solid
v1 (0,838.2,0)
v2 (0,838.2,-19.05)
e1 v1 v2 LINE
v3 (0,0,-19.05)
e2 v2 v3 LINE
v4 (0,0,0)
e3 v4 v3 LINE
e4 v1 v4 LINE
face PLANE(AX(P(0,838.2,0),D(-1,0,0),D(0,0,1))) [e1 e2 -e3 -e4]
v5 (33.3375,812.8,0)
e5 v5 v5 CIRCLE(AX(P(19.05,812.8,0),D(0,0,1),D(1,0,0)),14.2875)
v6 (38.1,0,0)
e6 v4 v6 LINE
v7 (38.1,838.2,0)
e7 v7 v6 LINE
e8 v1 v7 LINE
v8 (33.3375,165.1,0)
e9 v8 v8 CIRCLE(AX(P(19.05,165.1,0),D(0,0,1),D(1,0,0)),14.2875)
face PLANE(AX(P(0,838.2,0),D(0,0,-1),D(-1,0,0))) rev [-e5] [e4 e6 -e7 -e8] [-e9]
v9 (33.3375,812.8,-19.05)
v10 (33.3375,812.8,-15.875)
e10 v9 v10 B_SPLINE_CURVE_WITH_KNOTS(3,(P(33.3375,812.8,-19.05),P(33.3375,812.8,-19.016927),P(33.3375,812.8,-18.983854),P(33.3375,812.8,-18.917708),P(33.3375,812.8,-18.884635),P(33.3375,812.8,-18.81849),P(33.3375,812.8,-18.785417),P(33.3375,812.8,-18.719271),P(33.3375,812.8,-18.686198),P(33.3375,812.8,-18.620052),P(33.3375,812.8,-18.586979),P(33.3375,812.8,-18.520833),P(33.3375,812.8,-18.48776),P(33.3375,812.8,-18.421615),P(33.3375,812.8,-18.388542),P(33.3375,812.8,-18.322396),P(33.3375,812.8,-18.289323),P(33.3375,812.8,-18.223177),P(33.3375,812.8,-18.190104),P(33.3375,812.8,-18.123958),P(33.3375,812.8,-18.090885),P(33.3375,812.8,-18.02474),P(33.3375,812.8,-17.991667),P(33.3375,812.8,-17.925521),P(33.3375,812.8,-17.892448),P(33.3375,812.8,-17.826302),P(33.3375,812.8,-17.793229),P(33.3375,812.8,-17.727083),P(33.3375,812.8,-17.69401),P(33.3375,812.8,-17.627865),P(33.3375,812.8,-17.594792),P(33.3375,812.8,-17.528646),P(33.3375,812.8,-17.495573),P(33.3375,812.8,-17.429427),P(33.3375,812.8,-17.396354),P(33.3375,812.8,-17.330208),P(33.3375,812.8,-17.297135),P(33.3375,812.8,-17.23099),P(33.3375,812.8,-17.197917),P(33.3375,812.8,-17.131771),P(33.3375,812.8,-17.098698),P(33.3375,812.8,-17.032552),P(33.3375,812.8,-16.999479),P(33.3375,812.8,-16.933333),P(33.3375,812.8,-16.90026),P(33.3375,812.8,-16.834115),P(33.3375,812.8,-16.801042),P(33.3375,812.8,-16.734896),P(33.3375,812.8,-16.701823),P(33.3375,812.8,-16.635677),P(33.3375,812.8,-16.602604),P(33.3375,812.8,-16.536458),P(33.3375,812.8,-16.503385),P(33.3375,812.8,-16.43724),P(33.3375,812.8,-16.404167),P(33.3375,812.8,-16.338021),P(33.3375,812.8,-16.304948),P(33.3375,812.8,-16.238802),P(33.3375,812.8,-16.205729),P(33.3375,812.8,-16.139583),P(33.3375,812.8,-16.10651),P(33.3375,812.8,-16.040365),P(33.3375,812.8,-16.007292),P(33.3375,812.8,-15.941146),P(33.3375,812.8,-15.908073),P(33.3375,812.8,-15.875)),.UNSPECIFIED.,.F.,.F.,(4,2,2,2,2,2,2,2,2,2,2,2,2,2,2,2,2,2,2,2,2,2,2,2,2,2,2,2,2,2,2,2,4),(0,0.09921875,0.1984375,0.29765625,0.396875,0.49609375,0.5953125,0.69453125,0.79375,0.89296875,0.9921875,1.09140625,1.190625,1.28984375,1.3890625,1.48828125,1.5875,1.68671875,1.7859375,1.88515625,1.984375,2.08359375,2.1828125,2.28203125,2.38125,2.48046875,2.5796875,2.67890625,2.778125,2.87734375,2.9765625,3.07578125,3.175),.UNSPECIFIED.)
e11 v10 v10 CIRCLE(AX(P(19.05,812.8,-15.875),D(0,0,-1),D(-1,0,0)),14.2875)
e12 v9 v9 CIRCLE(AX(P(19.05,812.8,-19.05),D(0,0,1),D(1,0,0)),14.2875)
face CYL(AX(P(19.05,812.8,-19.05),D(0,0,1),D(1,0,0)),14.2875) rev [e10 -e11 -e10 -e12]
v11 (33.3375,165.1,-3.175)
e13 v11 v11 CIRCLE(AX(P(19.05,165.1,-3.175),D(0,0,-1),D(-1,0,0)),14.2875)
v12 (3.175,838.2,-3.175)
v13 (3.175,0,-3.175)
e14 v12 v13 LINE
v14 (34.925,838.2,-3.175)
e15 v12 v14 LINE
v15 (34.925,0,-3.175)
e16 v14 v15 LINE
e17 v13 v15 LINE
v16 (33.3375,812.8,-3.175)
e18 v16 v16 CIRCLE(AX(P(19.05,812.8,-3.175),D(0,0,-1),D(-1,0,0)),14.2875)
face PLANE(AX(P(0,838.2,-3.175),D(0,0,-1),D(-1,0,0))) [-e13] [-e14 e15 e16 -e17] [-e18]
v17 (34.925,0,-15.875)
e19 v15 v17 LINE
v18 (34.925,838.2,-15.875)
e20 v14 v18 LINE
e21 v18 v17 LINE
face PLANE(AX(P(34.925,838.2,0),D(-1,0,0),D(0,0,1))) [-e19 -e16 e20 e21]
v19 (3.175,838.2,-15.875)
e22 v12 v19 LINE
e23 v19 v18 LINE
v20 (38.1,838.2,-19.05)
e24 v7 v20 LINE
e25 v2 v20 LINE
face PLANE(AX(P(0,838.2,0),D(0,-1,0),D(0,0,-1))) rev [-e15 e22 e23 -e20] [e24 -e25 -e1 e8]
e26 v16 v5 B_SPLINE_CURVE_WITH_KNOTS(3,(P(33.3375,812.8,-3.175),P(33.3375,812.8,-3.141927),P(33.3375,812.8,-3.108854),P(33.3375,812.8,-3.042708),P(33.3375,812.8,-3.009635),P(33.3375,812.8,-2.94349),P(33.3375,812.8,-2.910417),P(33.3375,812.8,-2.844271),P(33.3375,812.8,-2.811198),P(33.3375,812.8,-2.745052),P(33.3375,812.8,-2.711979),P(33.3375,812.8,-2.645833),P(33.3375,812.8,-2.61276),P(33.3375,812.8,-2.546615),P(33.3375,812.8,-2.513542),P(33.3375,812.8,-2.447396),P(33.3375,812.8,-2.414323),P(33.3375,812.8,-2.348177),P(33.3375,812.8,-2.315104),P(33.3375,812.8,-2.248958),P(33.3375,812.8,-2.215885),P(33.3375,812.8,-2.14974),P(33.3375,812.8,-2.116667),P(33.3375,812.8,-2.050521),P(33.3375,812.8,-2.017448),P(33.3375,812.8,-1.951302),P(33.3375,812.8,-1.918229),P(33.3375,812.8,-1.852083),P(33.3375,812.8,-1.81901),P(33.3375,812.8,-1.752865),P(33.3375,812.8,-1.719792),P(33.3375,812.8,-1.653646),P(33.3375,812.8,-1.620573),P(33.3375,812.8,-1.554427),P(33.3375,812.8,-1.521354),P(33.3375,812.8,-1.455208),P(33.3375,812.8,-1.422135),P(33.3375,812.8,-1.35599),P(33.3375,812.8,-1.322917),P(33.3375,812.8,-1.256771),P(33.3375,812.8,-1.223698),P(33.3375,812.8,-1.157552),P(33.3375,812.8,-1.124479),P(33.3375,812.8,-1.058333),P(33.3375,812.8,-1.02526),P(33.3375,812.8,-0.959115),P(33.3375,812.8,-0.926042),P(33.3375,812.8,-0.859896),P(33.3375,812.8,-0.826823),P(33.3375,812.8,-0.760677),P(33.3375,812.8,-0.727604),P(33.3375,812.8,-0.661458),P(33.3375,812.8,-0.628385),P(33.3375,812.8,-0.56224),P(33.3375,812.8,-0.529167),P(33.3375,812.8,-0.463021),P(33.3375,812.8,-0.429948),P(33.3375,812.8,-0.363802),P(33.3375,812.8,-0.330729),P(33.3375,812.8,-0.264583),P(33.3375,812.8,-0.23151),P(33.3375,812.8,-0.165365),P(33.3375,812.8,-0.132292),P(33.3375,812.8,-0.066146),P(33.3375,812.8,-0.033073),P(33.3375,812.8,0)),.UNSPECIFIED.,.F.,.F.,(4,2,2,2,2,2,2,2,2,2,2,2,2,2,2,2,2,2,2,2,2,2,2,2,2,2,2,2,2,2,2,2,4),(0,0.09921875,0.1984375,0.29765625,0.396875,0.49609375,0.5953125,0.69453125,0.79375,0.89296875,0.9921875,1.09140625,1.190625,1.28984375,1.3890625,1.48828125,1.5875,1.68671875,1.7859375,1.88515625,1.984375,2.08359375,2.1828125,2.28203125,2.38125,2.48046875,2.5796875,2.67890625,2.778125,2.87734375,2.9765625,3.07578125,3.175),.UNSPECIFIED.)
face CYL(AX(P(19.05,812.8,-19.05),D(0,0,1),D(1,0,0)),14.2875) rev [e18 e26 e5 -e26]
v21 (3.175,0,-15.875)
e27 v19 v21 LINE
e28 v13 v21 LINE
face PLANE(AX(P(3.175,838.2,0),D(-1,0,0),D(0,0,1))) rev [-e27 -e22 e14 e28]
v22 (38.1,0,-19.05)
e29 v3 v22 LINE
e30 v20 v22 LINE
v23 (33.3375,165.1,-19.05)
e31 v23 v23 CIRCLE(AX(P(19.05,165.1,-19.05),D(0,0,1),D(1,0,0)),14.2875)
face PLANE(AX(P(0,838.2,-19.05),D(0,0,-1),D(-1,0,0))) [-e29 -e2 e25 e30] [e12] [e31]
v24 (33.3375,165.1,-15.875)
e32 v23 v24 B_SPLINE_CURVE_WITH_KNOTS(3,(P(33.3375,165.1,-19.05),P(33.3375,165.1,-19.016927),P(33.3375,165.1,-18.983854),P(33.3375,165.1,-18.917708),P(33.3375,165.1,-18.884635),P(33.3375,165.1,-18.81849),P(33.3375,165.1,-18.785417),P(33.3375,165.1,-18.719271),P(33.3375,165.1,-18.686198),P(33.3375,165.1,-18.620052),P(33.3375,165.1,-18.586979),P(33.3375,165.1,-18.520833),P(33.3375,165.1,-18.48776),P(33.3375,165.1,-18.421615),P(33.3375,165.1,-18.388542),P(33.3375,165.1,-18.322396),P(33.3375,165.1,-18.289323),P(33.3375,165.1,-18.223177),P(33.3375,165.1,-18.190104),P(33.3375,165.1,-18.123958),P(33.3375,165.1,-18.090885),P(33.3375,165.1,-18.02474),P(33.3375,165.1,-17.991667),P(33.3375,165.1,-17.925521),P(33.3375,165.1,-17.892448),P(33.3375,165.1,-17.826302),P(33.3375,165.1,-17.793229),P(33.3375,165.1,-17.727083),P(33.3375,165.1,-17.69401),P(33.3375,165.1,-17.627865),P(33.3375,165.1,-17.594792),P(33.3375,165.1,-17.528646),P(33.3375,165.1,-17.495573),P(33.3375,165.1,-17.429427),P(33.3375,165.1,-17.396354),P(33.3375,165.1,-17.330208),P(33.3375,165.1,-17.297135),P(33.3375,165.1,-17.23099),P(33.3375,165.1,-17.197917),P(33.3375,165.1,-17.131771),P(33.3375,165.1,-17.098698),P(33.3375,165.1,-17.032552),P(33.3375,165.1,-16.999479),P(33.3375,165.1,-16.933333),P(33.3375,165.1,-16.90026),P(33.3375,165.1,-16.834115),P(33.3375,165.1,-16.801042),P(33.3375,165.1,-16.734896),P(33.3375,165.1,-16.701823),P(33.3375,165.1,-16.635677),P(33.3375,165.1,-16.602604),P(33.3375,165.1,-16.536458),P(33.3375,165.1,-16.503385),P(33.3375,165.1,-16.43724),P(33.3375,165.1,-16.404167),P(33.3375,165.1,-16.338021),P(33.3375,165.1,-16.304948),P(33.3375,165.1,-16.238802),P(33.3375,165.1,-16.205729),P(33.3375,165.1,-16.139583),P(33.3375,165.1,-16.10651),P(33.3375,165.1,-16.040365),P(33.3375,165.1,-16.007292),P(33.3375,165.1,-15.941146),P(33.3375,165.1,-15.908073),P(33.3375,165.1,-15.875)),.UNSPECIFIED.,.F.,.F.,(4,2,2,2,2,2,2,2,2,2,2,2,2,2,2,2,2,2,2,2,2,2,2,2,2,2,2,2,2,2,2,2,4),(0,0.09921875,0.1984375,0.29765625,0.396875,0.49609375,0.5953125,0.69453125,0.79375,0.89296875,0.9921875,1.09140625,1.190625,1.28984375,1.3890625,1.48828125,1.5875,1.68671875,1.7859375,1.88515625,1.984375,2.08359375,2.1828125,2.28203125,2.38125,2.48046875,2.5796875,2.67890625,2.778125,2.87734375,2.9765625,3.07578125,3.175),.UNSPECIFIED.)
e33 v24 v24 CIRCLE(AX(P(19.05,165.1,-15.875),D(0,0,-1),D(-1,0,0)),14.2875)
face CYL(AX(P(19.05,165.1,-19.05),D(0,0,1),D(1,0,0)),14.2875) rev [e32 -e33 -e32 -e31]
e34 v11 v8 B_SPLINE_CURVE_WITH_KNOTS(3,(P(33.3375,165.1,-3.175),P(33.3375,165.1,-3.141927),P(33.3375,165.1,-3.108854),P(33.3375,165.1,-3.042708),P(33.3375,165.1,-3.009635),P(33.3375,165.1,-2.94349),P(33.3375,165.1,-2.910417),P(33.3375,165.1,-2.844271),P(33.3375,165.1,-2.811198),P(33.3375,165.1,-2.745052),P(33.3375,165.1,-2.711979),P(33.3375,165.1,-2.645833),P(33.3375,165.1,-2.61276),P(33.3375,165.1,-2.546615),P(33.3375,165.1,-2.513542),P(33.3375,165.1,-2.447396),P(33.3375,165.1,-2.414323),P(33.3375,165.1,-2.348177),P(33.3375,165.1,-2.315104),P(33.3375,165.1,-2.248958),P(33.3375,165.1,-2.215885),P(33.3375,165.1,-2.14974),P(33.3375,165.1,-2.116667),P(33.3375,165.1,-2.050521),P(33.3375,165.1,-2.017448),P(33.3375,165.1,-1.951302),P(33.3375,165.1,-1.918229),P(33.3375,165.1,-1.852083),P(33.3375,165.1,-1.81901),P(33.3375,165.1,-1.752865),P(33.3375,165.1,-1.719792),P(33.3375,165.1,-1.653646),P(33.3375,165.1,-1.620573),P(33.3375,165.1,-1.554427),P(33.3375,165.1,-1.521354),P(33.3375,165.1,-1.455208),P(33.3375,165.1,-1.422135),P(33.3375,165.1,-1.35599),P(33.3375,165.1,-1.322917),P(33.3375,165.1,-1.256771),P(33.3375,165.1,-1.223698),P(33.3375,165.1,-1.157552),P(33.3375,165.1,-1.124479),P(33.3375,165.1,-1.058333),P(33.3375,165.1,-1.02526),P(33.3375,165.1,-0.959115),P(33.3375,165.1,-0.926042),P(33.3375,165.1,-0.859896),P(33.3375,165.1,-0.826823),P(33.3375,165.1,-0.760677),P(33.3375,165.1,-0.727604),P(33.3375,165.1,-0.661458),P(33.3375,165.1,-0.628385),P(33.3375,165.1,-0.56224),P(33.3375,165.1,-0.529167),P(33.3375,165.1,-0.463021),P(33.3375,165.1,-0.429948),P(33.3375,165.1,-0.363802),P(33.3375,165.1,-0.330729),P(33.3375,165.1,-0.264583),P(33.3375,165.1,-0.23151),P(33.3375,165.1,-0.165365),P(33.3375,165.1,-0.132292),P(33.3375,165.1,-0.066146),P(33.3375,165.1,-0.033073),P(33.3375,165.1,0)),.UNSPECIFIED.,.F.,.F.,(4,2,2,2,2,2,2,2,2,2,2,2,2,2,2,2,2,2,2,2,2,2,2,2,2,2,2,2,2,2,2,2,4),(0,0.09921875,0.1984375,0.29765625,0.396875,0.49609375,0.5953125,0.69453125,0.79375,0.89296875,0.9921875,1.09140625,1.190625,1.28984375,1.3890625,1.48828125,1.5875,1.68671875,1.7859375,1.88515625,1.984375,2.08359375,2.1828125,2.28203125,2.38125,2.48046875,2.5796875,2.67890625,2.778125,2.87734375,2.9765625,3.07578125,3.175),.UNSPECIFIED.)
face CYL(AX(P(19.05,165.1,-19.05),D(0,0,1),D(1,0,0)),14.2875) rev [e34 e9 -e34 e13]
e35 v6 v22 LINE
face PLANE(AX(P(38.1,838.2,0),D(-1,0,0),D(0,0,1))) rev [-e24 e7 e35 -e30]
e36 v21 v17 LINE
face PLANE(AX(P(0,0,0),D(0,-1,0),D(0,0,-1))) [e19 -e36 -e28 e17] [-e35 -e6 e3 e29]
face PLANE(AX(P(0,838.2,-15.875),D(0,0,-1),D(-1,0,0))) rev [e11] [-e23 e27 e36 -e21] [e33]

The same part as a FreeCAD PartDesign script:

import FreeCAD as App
import Part
import Sketcher
Q = App.Units.Quantity


def add_polygon(sketch, points):
    """Adds a closed chain of lines whose ends are joined by coincident constraints."""
    first, n = sketch.GeometryCount, len(points)
    for a, b in zip(points, points[1:] + points[:1]):
        sketch.addGeometry(Part.LineSegment(App.Vector(*a, 0), App.Vector(*b, 0)), False)
    for i in range(n):
        sketch.addConstraint(Sketcher.Constraint("Coincident", first + i, 2, first + (i + 1) % n, 1))

doc = App.newDocument("Part")
body = doc.addObject("PartDesign::Body", "Body")

# Sketch on XZ plane
sketch1 = body.newObject("Sketcher::SketchObject", "Sketch")
sketch1.AttachmentSupport = (doc.getObject("XZ_Plane"), [""])
sketch1.MapMode = "FlatFace"
add_polygon(sketch1, [(0, -19), (0, 0), (38, 0), (38, -19)])  # lines 0-3
add_polygon(sketch1, [(35, -3), (3, -3), (3, -16), (35, -16)])  # lines 4-7
sketch1.addConstraint(Sketcher.Constraint("Vertical", 0))
sketch1.addConstraint(Sketcher.Constraint("Horizontal", 1))
sketch1.addConstraint(Sketcher.Constraint("Vertical", 2))
sketch1.addConstraint(Sketcher.Constraint("Horizontal", 3))
sketch1.addConstraint(Sketcher.Constraint("Horizontal", 4))
sketch1.addConstraint(Sketcher.Constraint("Vertical", 5))
sketch1.addConstraint(Sketcher.Constraint("Horizontal", 6))
sketch1.addConstraint(Sketcher.Constraint("Vertical", 7))
sketch1.addConstraint(Sketcher.Constraint("Coincident", 0, 2, -1, 1))
sketch1.addConstraint(Sketcher.Constraint("DistanceX", 1, 1, 1, 2, Q("1.5 in")))
sketch1.addConstraint(Sketcher.Constraint("DistanceY", 5, 2, 5, 1, Q("0.5 in")))
sketch1.addConstraint(Sketcher.Constraint("DistanceX", 4, 2, 4, 1, Q("1.25 in")))
sketch1.addConstraint(Sketcher.Constraint("DistanceY", 0, 1, 0, 2, Q("0.75 in")))
sketch1.addConstraint(Sketcher.Constraint("DistanceX", -1, 1, 4, 2, Q("0.125 in")))
sketch1.addConstraint(Sketcher.Constraint("DistanceY", 4, 2, -1, 1, Q("0.125 in")))
pad1 = body.newObject("PartDesign::Pad", "Pad")
pad1.Profile = sketch1
pad1.Length = Q("33 in")
pad1.Reversed = True

# Sketch on XY plane
sketch2 = body.newObject("Sketcher::SketchObject", "Sketch001")
sketch2.AttachmentSupport = (doc.getObject("XY_Plane"), [""])
sketch2.MapMode = "FlatFace"
sketch2.addGeometry(Part.Circle(App.Vector(19, 165, 0), App.Vector(0, 0, 1), 14), False)
sketch2.addConstraint(Sketcher.Constraint("Diameter", 0, Q("1.125 in")))
sketch2.addConstraint(Sketcher.Constraint("DistanceY", -1, 1, 0, 3, Q("6.5 in")))
sketch2.addConstraint(Sketcher.Constraint("DistanceX", -1, 1, 0, 3, Q("0.75 in")))
pocket1 = body.newObject("PartDesign::Pocket", "Pocket")
pocket1.Profile = sketch2
pocket1.Type = "ThroughAll"

# Sketch on XY plane
sketch3 = body.newObject("Sketcher::SketchObject", "Sketch002")
sketch3.AttachmentSupport = (doc.getObject("XY_Plane"), [""])
sketch3.MapMode = "FlatFace"
sketch3.addGeometry(Part.Circle(App.Vector(19, 813, 0), App.Vector(0, 0, 1), 14), False)
sketch3.addConstraint(Sketcher.Constraint("Diameter", 0, Q("1.125 in")))
sketch3.addConstraint(Sketcher.Constraint("DistanceY", -1, 1, 0, 3, Q("32 in")))
sketch3.addConstraint(Sketcher.Constraint("DistanceX", -1, 1, 0, 3, Q("0.75 in")))
pocket2 = body.newObject("PartDesign::Pocket", "Pocket001")
pocket2.Profile = sketch3
pocket2.Type = "ThroughAll"

doc.recompute()
